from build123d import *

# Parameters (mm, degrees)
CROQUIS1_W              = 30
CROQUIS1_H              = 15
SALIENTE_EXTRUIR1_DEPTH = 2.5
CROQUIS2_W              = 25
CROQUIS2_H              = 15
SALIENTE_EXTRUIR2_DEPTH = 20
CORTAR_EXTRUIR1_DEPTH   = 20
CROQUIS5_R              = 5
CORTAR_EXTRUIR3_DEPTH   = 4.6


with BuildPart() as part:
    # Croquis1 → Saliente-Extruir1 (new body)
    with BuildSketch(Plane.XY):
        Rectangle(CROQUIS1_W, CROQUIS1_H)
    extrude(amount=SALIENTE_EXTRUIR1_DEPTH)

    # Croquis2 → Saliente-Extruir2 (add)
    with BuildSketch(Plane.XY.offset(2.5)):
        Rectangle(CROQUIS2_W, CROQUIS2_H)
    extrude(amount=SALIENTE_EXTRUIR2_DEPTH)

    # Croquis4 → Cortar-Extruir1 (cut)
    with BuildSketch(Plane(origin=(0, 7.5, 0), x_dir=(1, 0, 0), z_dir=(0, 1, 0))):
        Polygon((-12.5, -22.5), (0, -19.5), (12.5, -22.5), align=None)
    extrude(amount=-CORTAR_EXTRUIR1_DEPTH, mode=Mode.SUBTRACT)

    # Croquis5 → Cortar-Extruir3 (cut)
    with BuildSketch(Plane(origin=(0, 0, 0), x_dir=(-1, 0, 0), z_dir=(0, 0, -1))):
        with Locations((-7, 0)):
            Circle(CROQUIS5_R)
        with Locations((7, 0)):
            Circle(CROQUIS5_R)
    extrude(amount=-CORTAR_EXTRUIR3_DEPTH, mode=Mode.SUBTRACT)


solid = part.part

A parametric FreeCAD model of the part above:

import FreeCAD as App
import Part
import Sketcher
Q = App.Units.Quantity


def add_polygon(sketch, points):
    """Adds a closed chain of lines whose ends are joined by coincident constraints."""
    first, n = sketch.GeometryCount, len(points)
    for a, b in zip(points, points[1:] + points[:1]):
        sketch.addGeometry(Part.LineSegment(App.Vector(*a, 0), App.Vector(*b, 0)), False)
    for i in range(n):
        sketch.addConstraint(Sketcher.Constraint("Coincident", first + i, 2, first + (i + 1) % n, 1))

doc = App.newDocument("Part")
body = doc.addObject("PartDesign::Body", "Body")

# Sketch on XY plane
sketch1 = body.newObject("Sketcher::SketchObject", "Sketch")
sketch1.AttachmentSupport = (doc.getObject("XY_Plane"), [""])
sketch1.MapMode = "FlatFace"
add_polygon(sketch1, [(-15, 8), (-15, -8), (15, -8), (15, 8)])  # lines 0-3
sketch1.addConstraint([
    Sketcher.Constraint("Vertical", 0),
    Sketcher.Constraint("Horizontal", 1),
    Sketcher.Constraint("Vertical", 2),
    Sketcher.Constraint("Horizontal", 3),
    Sketcher.Constraint("Symmetric", 0, 2, 2, 2, -1, 1),
    Sketcher.Constraint("DistanceX", 1, 1, 1, 2, Q("30 mm")),
    Sketcher.Constraint("DistanceY", 0, 2, 0, 1, Q("15 mm")),
])
pad1 = body.newObject("PartDesign::Pad", "Pad")
pad1.Profile = sketch1
pad1.Length = 2.5

# Sketch on XY plane
sketch2 = body.newObject("Sketcher::SketchObject", "Sketch001")
sketch2.AttachmentSupport = (doc.getObject("XY_Plane"), [""])
sketch2.MapMode = "FlatFace"
sketch2.AttachmentOffset = App.Placement(App.Vector(0, 0, 2.5), App.Rotation())
add_polygon(sketch2, [(-12, 8), (-12, -8), (12, -8), (12, 8)])  # lines 0-3
sketch2.addConstraint([
    Sketcher.Constraint("Vertical", 0),
    Sketcher.Constraint("Horizontal", 1),
    Sketcher.Constraint("Vertical", 2),
    Sketcher.Constraint("Horizontal", 3),
    Sketcher.Constraint("Symmetric", 0, 2, 2, 2, -1, 1),
    Sketcher.Constraint("DistanceX", 1, 1, 1, 2, Q("25 mm")),
    Sketcher.Constraint("DistanceY", 0, 2, 0, 1, Q("15 mm")),
])
pad2 = body.newObject("PartDesign::Pad", "Pad001")
pad2.Profile = sketch2
pad2.Length = 20

# Sketch on XZ plane
sketch3 = body.newObject("Sketcher::SketchObject", "Sketch002")
sketch3.AttachmentSupport = (doc.getObject("XZ_Plane"), [""])
sketch3.MapMode = "FlatFace"
sketch3.AttachmentOffset = App.Placement(App.Vector(0, 0, -7.5), App.Rotation())
add_polygon(sketch3, [(0, 20), (-12, 22), (12, 22)])  # lines 0-2
sketch3.addConstraint([
    Sketcher.Constraint("Horizontal", 1),
    Sketcher.Constraint("PointOnObject", 2, 2, -2),
    Sketcher.Constraint("Equal", 0, 2),
    Sketcher.Constraint("DistanceX", 1, 1, 1, 2, Q("25 mm")),
    Sketcher.Constraint("DistanceY", 2, 2, 0, 2, Q("3 mm")),
    Sketcher.Constraint("DistanceY", -1, 1, 0, 2, Q("22.5 mm")),
])
pocket1 = body.newObject("PartDesign::Pocket", "Pocket")
pocket1.Profile = sketch3
pocket1.Length = 20
pocket1.Reversed = True

# Sketch on XY plane
sketch4 = body.newObject("Sketcher::SketchObject", "Sketch003")
sketch4.AttachmentSupport = (doc.getObject("XY_Plane"), [""])
sketch4.MapMode = "FlatFace"
sketch4.addGeometry([
    Part.Circle(App.Vector(7, 0, 0), App.Vector(0, 0, 1), 5),
    Part.Circle(App.Vector(-7, 0, 0), App.Vector(0, 0, 1), 5),
], False)
sketch4.addConstraint([
    Sketcher.Constraint("Equal", 0, 1),
    Sketcher.Constraint("Symmetric", 0, 3, 1, 3, -1, 1),
    Sketcher.Constraint("PointOnObject", 0, 3, -1),
    Sketcher.Constraint("Diameter", 0, Q("10 mm")),
    Sketcher.Constraint("DistanceX", -1, 1, 0, 3, Q("7 mm")),
])
pocket2 = body.newObject("PartDesign::Pocket", "Pocket001")
pocket2.Profile = sketch4
pocket2.Length = 4.6
pocket2.Reversed = True

doc.recompute()
